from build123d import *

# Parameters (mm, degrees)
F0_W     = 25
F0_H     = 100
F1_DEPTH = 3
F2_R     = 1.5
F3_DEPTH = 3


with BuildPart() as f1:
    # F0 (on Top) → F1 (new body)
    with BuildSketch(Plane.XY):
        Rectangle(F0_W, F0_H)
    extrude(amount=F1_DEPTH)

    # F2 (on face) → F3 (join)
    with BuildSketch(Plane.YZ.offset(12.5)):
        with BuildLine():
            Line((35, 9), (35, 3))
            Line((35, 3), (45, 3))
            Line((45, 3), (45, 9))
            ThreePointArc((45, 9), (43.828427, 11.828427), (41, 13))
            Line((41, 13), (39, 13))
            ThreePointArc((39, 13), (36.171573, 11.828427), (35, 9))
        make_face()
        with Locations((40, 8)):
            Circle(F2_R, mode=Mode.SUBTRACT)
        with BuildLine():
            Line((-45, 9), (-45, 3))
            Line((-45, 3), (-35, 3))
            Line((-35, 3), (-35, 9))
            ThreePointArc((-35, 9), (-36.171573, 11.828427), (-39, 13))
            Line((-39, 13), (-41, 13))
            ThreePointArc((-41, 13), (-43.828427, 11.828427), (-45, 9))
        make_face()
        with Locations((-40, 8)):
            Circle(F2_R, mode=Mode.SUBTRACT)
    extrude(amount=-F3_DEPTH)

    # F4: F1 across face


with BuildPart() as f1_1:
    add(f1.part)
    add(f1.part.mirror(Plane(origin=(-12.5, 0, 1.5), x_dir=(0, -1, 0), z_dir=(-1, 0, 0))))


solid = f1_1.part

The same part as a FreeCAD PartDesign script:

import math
import FreeCAD as App
import Part
import Sketcher
from FreeCAD import Vector

doc = App.newDocument("Part")
params = doc.addObject("Spreadsheet::Sheet", "Params")
for row, (alias, value) in enumerate([
    ("sketch1_width", "25 mm"),
    ("sketch1_height", "100 mm"),
    ("pad1_length", "3 mm"),
    ("sketch2_diameter", "3 mm"),
    ("sketch2_radius", "4 mm"),
    ("sketch2_width", "10 mm"),
    ("sketch2_height", "6 mm"),
    ("pad2_length", "3 mm"),
], start=1):
    params.set(f"A{row}", alias)
    params.set(f"B{row}", "=" + value)
    params.setAlias(f"B{row}", alias)

body = doc.addObject("PartDesign::Body", "Body")

sketch1 = doc.addObject("Sketcher::SketchObject", "Sketch")
body.addObject(sketch1)
sketch1.AttachmentSupport = (doc.XY_Plane, [""])
sketch1.MapMode = "FlatFace"
sketch1.addGeometry([
    Part.LineSegment(Vector(-12, 50, 0), Vector(-12, -50, 0)),
    Part.LineSegment(Vector(-12, -50, 0), Vector(12, -50, 0)),
    Part.LineSegment(Vector(12, -50, 0), Vector(12, 50, 0)),
    Part.LineSegment(Vector(12, 50, 0), Vector(-12, 50, 0)),
], False)
sketch1.addConstraint([
    Sketcher.Constraint("Coincident", 0, 2, 1, 1),
    Sketcher.Constraint("Coincident", 1, 2, 2, 1),
    Sketcher.Constraint("Coincident", 2, 2, 3, 1),
    Sketcher.Constraint("Coincident", 3, 2, 0, 1),
    Sketcher.Constraint("Vertical", 0),
    Sketcher.Constraint("Horizontal", 1),
    Sketcher.Constraint("Vertical", 2),
    Sketcher.Constraint("Horizontal", 3),
    Sketcher.Constraint("Symmetric", 0, 2, 2, 2, -1, 1),
    Sketcher.Constraint("DistanceX", 1, 1, 1, 2, 25.0),
    Sketcher.Constraint("DistanceY", 0, 2, 0, 1, 100.0),
])
sketch1.setExpression("Constraints[9]", "Params.sketch1_width")
sketch1.setExpression("Constraints[10]", "Params.sketch1_height")
pad1 = doc.addObject("PartDesign::Pad", "Pad")
body.addObject(pad1)
pad1.Profile = sketch1
pad1.setExpression("Length", "Params.pad1_length")

sketch2 = doc.addObject("Sketcher::SketchObject", "Sketch001")
body.addObject(sketch2)
sketch2.AttachmentSupport = (doc.YZ_Plane, [""])
sketch2.MapMode = "FlatFace"
sketch2.AttachmentOffset = App.Placement(Vector(0, 0, 12.5), App.Rotation())
sketch2.addGeometry([
    Part.LineSegment(Vector(35, 9, 0), Vector(35, 3, 0)),
    Part.LineSegment(Vector(35, 3, 0), Vector(45, 3, 0)),
    Part.LineSegment(Vector(45, 3, 0), Vector(45, 9, 0)),
    Part.ArcOfCircle(Part.Circle(Vector(41, 9, 0), Vector(0, 0, 1), 4), math.radians(0), math.radians(90)),
    Part.LineSegment(Vector(41, 13, 0), Vector(39, 13, 0)),
    Part.ArcOfCircle(Part.Circle(Vector(39, 9, 0), Vector(0, 0, 1), 4), math.radians(90), math.radians(180)),
    Part.Circle(Vector(40, 8, 0), Vector(0, 0, 1), 1.5),
    Part.LineSegment(Vector(-45, 9, 0), Vector(-45, 3, 0)),
    Part.LineSegment(Vector(-45, 3, 0), Vector(-35, 3, 0)),
    Part.LineSegment(Vector(-35, 3, 0), Vector(-35, 9, 0)),
    Part.ArcOfCircle(Part.Circle(Vector(-39, 9, 0), Vector(0, 0, 1), 4), math.radians(0), math.radians(90)),
    Part.LineSegment(Vector(-39, 13, 0), Vector(-41, 13, 0)),
    Part.ArcOfCircle(Part.Circle(Vector(-41, 9, 0), Vector(0, 0, 1), 4), math.radians(90), math.radians(180)),
    Part.Circle(Vector(-40, 8, 0), Vector(0, 0, 1), 1.5),
], False)
sketch2.addConstraint([
    Sketcher.Constraint("Coincident", 0, 2, 1, 1),
    Sketcher.Constraint("Coincident", 1, 2, 2, 1),
    Sketcher.Constraint("Tangent", 2, 2, 3, 1),
    Sketcher.Constraint("Tangent", 3, 2, 4, 1),
    Sketcher.Constraint("Tangent", 4, 2, 5, 1),
    Sketcher.Constraint("Tangent", 5, 2, 0, 1),
    Sketcher.Constraint("Coincident", 7, 2, 8, 1),
    Sketcher.Constraint("Coincident", 8, 2, 9, 1),
    Sketcher.Constraint("Tangent", 9, 2, 10, 1),
    Sketcher.Constraint("Tangent", 10, 2, 11, 1),
    Sketcher.Constraint("Tangent", 11, 2, 12, 1),
    Sketcher.Constraint("Tangent", 12, 2, 7, 1),
    Sketcher.Constraint("Vertical", 0),
    Sketcher.Constraint("Horizontal", 1),
    Sketcher.Constraint("Vertical", 2),
    Sketcher.Constraint("Horizontal", 4),
    Sketcher.Constraint("Vertical", 7),
    Sketcher.Constraint("Horizontal", 8),
    Sketcher.Constraint("Vertical", 9),
    Sketcher.Constraint("Horizontal", 11),
    Sketcher.Constraint("Equal", 3, 5),
    Sketcher.Constraint("Equal", 5, 10),
    Sketcher.Constraint("Equal", 10, 12),
    Sketcher.Constraint("Equal", 6, 13),
    Sketcher.Constraint("Symmetric", 5, 3, 10, 3, -2),
    Sketcher.Constraint("Symmetric", 6, 3, 13, 3, -2),
    Sketcher.Constraint("Symmetric", 1, 2, 7, 2, -2),
    Sketcher.Constraint("Diameter", 6, 3.0),
    Sketcher.Constraint("Radius", 3, 4.0),
    Sketcher.Constraint("DistanceX", 1, 1, 1, 2, 10.0),
    Sketcher.Constraint("DistanceY", 0, 2, 0, 1, 6.0),
    Sketcher.Constraint("DistanceX", -1, 1, 3, 3, 41.0),
    Sketcher.Constraint("DistanceY", -1, 1, 3, 3, 9.0),
    Sketcher.Constraint("DistanceX", -1, 1, 6, 3, 40.0),
    Sketcher.Constraint("DistanceY", -1, 1, 6, 3, 8.0),
])
sketch2.setExpression("Constraints[27]", "Params.sketch2_diameter")
sketch2.setExpression("Constraints[28]", "Params.sketch2_radius")
sketch2.setExpression("Constraints[29]", "Params.sketch2_width")
sketch2.setExpression("Constraints[30]", "Params.sketch2_height")
pad2 = doc.addObject("PartDesign::Pad", "Pad001")
body.addObject(pad2)
pad2.Profile = sketch2
pad2.setExpression("Length", "Params.pad2_length")
pad2.Reversed = True
body2 = doc.addObject("PartDesign::Body", "Body001")
doc.recompute()

body2.BaseFeature = body
doc.recompute()

mirroring = doc.addObject("Part::Mirroring", "Mirroring")
mirroring.Source = body
mirroring.Base = Vector(-12.5, 0, 1.5)
mirroring.Normal = Vector(-1, 0, 0)
body3 = doc.addObject("PartDesign::Body", "Body002")
body3.BaseFeature = mirroring
boolean = doc.addObject("PartDesign::Boolean", "Boolean")
body2.addObject(boolean)
boolean.Type = "Fuse"
boolean.addObjects([body3])
doc.recompute()
mirroring.Visibility = False

doc.recompute()
